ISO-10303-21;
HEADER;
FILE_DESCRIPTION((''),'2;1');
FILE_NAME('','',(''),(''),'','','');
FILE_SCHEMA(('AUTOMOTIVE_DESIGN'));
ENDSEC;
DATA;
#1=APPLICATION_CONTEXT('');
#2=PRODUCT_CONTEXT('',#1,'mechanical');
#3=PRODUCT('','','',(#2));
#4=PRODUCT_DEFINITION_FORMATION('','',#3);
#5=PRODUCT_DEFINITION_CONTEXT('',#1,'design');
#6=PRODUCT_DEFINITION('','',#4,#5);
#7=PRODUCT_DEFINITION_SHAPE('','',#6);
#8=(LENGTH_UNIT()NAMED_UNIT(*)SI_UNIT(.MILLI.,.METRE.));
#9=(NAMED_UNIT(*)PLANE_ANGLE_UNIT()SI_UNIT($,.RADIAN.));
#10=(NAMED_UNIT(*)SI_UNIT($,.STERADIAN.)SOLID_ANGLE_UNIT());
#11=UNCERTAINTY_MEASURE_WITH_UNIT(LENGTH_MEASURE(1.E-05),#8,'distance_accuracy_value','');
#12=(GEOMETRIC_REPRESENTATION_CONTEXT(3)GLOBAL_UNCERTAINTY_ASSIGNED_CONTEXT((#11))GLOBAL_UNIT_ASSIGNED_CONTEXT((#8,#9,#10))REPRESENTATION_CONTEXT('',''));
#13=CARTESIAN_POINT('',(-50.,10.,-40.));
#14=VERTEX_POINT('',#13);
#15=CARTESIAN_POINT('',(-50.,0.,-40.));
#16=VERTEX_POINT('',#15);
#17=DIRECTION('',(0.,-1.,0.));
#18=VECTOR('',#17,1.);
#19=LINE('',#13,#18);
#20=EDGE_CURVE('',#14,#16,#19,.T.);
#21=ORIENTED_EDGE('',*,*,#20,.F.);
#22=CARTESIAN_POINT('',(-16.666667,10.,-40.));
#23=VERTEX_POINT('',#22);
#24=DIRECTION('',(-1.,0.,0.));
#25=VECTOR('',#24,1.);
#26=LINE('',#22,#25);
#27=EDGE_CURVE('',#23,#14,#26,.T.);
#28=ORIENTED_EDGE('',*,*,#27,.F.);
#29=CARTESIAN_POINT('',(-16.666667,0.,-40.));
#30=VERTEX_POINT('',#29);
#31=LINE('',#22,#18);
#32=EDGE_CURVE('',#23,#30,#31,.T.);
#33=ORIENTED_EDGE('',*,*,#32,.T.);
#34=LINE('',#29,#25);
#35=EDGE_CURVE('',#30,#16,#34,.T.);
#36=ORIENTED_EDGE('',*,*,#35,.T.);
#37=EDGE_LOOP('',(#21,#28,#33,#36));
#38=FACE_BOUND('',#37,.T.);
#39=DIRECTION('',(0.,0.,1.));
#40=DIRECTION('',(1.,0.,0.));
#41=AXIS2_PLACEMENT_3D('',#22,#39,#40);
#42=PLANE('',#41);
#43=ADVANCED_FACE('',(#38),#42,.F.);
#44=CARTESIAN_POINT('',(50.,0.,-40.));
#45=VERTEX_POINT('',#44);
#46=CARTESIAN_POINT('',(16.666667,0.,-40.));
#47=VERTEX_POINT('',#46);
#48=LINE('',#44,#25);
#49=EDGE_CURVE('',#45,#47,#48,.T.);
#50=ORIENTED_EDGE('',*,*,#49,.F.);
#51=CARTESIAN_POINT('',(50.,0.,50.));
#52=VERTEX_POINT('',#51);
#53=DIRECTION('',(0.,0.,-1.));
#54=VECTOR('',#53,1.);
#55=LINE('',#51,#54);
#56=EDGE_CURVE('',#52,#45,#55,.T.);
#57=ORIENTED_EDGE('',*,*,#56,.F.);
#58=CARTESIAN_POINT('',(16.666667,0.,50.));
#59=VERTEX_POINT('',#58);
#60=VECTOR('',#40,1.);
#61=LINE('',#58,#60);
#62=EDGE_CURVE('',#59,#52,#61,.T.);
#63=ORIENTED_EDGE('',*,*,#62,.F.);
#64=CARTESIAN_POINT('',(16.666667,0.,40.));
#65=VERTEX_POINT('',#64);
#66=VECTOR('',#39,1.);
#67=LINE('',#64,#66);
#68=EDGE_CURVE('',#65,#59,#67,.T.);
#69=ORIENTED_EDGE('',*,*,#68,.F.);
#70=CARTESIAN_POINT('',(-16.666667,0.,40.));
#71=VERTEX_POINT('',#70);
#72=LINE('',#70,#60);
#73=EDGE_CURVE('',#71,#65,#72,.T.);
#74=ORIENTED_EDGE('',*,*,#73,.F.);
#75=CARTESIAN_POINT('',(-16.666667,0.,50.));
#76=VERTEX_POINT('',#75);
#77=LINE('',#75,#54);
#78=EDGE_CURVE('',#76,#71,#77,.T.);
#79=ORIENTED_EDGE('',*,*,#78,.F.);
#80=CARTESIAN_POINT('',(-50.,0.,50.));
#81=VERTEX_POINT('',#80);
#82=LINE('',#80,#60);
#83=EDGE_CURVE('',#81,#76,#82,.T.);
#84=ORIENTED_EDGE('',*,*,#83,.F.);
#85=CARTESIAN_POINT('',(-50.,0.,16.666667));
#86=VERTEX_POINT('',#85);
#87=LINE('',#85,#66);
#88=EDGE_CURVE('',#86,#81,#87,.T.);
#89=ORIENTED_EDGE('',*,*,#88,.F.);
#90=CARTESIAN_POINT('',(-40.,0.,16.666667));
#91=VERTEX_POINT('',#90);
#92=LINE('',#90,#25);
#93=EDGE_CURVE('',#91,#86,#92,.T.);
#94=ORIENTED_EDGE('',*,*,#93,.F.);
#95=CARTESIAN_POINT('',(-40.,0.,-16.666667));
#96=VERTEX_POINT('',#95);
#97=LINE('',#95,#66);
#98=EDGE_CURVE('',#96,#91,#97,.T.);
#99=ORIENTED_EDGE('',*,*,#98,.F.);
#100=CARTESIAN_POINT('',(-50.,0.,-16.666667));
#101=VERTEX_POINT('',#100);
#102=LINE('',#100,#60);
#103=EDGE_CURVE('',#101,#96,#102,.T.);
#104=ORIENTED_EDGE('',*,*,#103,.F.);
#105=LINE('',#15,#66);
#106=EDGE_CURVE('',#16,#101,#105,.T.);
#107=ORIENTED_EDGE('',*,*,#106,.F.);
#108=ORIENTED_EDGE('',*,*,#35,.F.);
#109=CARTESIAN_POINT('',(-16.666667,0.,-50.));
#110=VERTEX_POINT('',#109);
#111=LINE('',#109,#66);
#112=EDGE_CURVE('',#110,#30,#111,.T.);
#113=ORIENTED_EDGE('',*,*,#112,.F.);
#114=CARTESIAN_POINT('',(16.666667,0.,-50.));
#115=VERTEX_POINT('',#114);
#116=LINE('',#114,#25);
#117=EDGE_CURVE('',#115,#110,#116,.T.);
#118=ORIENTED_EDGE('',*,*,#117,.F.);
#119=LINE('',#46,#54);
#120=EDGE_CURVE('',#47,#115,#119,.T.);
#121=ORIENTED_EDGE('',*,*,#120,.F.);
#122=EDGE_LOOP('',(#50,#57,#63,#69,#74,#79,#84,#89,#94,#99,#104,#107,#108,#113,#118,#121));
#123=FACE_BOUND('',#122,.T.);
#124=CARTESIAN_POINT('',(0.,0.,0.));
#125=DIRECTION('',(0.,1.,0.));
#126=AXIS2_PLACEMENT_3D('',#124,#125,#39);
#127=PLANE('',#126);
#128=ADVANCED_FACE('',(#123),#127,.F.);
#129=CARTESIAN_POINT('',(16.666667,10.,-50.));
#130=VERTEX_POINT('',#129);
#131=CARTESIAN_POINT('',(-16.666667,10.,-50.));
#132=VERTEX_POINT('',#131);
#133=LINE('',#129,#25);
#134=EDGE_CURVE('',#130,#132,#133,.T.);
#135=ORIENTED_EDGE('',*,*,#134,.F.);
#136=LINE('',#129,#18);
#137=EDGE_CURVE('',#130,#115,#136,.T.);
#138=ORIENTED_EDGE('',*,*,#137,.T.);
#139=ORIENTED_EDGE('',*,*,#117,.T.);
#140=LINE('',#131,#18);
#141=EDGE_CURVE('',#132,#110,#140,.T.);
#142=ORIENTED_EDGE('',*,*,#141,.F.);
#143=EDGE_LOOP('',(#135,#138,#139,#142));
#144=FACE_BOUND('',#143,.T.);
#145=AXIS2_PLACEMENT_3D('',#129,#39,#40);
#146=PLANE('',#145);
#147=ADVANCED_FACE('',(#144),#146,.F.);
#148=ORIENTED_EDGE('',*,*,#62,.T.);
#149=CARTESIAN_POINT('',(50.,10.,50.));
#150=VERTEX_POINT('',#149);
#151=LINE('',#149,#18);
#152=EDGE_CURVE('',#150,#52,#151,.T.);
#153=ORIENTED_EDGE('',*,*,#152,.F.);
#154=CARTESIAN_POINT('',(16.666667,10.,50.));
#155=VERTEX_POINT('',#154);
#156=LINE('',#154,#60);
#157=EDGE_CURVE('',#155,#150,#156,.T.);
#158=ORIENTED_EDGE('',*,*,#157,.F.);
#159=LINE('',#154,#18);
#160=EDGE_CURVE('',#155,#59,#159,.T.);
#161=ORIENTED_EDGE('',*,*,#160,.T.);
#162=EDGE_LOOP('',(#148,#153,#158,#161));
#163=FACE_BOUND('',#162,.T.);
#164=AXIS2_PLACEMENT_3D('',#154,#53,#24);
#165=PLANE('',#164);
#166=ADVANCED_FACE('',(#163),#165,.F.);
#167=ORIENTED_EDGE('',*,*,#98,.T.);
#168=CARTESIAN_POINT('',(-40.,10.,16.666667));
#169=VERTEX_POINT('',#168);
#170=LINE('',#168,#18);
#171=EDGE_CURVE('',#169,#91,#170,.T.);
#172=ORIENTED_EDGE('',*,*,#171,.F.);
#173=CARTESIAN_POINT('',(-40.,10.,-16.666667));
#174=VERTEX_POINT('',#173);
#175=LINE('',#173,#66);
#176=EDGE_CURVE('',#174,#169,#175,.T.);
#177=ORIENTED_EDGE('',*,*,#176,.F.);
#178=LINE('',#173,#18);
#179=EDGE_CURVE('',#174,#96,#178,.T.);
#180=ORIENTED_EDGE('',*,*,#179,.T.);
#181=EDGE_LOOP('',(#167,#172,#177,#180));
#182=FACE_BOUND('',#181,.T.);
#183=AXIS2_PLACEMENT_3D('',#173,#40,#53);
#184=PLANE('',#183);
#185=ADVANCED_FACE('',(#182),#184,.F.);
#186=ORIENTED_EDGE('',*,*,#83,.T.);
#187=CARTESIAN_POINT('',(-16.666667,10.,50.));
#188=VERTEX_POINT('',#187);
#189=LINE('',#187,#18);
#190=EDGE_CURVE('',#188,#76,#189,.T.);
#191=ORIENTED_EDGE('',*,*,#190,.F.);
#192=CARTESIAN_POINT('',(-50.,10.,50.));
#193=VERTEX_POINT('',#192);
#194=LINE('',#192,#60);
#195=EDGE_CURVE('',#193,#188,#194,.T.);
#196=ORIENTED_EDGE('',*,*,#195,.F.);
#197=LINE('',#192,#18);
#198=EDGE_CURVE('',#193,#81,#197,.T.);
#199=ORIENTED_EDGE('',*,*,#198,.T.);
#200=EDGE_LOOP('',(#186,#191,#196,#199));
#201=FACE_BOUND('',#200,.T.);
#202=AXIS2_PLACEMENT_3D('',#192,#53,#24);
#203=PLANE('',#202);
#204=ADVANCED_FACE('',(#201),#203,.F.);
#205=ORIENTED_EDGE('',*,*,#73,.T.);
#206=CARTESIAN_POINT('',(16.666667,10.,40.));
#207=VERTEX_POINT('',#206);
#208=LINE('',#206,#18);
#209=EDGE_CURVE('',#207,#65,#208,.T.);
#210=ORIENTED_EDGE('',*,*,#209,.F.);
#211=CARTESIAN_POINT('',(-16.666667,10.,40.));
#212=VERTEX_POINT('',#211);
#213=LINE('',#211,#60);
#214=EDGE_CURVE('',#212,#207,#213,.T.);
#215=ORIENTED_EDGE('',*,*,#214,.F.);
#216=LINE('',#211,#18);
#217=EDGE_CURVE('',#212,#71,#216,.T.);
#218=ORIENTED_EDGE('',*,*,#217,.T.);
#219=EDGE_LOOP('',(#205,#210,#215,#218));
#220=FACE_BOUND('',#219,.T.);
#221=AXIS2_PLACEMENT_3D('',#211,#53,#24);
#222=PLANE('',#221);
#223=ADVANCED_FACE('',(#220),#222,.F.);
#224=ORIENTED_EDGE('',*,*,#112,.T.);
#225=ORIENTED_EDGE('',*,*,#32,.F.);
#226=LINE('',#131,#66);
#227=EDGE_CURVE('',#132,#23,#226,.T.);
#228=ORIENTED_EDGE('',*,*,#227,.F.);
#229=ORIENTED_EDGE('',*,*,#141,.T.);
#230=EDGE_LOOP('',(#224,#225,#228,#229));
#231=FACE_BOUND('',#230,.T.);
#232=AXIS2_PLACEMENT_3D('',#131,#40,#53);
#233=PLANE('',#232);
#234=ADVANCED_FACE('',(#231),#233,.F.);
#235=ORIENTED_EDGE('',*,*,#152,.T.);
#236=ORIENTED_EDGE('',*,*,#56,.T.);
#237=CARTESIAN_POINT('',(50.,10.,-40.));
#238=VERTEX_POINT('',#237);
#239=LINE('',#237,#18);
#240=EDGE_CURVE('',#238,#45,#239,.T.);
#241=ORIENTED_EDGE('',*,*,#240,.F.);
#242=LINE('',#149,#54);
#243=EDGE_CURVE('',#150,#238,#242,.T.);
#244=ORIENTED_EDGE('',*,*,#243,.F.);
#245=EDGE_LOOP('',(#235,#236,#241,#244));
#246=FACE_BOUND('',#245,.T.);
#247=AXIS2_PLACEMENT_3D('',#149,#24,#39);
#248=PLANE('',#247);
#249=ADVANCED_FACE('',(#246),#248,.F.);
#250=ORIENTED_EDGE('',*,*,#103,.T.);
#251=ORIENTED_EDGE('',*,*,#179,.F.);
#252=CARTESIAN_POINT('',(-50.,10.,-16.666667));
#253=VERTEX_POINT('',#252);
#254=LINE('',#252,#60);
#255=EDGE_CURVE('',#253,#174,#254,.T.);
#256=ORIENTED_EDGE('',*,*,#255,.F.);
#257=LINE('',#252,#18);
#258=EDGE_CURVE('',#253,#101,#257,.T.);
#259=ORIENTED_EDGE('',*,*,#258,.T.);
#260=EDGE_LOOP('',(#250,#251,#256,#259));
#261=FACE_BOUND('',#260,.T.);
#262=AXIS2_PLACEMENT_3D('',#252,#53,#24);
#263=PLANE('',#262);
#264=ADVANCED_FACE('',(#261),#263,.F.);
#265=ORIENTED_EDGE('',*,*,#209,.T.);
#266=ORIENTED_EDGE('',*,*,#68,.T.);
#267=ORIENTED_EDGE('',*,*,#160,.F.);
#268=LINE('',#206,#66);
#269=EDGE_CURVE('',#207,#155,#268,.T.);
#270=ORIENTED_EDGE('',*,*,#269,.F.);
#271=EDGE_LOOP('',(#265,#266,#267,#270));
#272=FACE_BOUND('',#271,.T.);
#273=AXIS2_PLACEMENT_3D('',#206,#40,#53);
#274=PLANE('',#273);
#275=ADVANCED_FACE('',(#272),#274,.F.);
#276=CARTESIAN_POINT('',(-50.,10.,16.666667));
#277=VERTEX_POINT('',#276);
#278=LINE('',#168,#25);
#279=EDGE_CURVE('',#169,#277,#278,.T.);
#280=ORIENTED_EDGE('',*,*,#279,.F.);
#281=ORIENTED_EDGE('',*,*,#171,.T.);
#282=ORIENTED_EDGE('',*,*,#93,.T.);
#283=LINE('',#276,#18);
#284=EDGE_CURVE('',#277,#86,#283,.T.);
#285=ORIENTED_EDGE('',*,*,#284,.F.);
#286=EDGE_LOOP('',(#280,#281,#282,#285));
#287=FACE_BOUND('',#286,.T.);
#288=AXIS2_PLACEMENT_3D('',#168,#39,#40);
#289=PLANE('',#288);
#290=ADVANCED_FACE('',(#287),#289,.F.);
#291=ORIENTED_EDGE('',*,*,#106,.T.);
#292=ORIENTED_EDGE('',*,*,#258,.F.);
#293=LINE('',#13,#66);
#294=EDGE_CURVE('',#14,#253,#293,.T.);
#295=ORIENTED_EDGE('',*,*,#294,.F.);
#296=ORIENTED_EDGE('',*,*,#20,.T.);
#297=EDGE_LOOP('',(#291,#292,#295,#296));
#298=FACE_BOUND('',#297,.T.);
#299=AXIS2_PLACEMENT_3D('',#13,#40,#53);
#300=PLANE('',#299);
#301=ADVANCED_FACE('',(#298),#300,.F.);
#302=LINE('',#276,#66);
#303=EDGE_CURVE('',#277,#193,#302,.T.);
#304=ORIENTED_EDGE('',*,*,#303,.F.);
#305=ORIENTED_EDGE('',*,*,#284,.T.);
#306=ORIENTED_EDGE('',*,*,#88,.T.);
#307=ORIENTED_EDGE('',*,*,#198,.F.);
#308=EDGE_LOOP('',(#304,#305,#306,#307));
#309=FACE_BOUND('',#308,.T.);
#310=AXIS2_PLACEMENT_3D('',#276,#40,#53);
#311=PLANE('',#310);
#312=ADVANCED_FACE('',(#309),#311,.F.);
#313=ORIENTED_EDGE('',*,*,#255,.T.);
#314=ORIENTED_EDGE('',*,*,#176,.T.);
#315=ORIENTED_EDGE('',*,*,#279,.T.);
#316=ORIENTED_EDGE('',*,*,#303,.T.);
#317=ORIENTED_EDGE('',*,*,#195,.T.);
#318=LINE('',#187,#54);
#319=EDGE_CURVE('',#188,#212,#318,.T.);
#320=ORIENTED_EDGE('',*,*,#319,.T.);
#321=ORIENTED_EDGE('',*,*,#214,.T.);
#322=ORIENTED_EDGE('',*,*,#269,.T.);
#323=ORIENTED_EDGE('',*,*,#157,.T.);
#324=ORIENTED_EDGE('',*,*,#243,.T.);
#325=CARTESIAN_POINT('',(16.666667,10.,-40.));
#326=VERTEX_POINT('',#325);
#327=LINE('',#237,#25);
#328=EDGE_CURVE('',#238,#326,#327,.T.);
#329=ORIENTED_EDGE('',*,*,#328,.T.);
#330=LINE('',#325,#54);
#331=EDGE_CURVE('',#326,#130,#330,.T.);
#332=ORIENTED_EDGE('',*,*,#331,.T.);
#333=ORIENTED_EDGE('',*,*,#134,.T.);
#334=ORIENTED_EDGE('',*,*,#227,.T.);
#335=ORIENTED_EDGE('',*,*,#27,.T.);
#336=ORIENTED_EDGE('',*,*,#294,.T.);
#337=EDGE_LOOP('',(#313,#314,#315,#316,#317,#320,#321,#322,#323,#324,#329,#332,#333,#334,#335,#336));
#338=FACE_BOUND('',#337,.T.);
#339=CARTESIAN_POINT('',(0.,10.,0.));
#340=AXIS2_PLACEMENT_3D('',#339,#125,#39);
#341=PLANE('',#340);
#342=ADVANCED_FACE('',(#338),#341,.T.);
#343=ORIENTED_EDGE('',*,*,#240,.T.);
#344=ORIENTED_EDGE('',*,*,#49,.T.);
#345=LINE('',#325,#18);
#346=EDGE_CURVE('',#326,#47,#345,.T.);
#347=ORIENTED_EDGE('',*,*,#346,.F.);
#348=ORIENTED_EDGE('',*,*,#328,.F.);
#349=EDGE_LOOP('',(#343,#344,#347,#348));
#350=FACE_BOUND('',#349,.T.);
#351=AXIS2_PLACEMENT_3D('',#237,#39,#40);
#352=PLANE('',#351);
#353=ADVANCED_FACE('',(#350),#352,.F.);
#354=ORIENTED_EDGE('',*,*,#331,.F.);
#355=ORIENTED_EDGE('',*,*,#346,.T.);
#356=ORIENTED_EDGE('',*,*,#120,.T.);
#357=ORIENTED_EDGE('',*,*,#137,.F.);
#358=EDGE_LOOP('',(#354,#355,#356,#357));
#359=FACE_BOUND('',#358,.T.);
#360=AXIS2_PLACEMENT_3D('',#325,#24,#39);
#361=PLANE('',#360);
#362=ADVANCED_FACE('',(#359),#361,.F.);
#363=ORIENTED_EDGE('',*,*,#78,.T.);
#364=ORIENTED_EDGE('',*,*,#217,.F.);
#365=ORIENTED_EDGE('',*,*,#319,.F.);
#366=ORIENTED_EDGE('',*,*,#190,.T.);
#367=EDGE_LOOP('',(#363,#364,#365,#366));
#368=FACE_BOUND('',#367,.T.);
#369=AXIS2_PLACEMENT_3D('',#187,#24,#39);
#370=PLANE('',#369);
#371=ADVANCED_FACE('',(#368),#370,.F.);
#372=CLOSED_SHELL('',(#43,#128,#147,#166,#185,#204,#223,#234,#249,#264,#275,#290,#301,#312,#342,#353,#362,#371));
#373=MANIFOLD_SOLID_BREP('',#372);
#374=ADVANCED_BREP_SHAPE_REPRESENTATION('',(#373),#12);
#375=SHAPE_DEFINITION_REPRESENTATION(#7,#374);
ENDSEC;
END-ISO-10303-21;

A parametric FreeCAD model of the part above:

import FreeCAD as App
import Part
import Sketcher
Q = App.Units.Quantity

doc = App.newDocument("Part")
params = doc.addObject("Spreadsheet::Sheet", "Params")
for row, (alias, value) in enumerate([
    ("sketch1_width", "10 mm"),
    ("sketch1_height", "90 mm"),
    ("pad1_length", "10 mm"),
], start=1):
    params.set(f"A{row}", alias)
    params.set(f"B{row}", "=" + value)
    params.setAlias(f"B{row}", alias)

body = doc.addObject("PartDesign::Body", "Body")

sketch1 = body.newObject("Sketcher::SketchObject", "Sketch")
sketch1.AttachmentSupport = (doc.getObject("XZ_Plane"), [""])
sketch1.MapMode = "FlatFace"
sketch1.addGeometry([
    Part.LineSegment(App.Vector(-50, 17, 0), App.Vector(-50, 50, 0)),
    Part.LineSegment(App.Vector(-50, 50, 0), App.Vector(-17, 50, 0)),
    Part.LineSegment(App.Vector(-17, 50, 0), App.Vector(-17, 40, 0)),
    Part.LineSegment(App.Vector(-17, 40, 0), App.Vector(17, 40, 0)),
    Part.LineSegment(App.Vector(17, 40, 0), App.Vector(17, 50, 0)),
    Part.LineSegment(App.Vector(17, 50, 0), App.Vector(50, 50, 0)),
    Part.LineSegment(App.Vector(50, 50, 0), App.Vector(50, -40, 0)),
    Part.LineSegment(App.Vector(50, -40, 0), App.Vector(17, -40, 0)),
    Part.LineSegment(App.Vector(17, -40, 0), App.Vector(17, -50, 0)),
    Part.LineSegment(App.Vector(17, -50, 0), App.Vector(-17, -50, 0)),
    Part.LineSegment(App.Vector(-17, -50, 0), App.Vector(-17, -40, 0)),
    Part.LineSegment(App.Vector(-17, -40, 0), App.Vector(-50, -40, 0)),
    Part.LineSegment(App.Vector(-50, -40, 0), App.Vector(-50, -17, 0)),
    Part.LineSegment(App.Vector(-50, -17, 0), App.Vector(-40, -17, 0)),
    Part.LineSegment(App.Vector(-40, -17, 0), App.Vector(-40, 17, 0)),
    Part.LineSegment(App.Vector(-40, 17, 0), App.Vector(-50, 17, 0)),
], False)
sketch1.addConstraint([
    Sketcher.Constraint("Coincident", 0, 2, 1, 1),
    Sketcher.Constraint("Coincident", 1, 2, 2, 1),
    Sketcher.Constraint("Coincident", 2, 2, 3, 1),
    Sketcher.Constraint("Coincident", 3, 2, 4, 1),
    Sketcher.Constraint("Coincident", 4, 2, 5, 1),
    Sketcher.Constraint("Coincident", 5, 2, 6, 1),
    Sketcher.Constraint("Coincident", 6, 2, 7, 1),
    Sketcher.Constraint("Coincident", 7, 2, 8, 1),
    Sketcher.Constraint("Coincident", 8, 2, 9, 1),
    Sketcher.Constraint("Coincident", 9, 2, 10, 1),
    Sketcher.Constraint("Coincident", 10, 2, 11, 1),
    Sketcher.Constraint("Coincident", 11, 2, 12, 1),
    Sketcher.Constraint("Coincident", 12, 2, 13, 1),
    Sketcher.Constraint("Coincident", 13, 2, 14, 1),
    Sketcher.Constraint("Coincident", 14, 2, 15, 1),
    Sketcher.Constraint("Coincident", 15, 2, 0, 1),
    Sketcher.Constraint("Vertical", 0),
    Sketcher.Constraint("Horizontal", 1),
    Sketcher.Constraint("Vertical", 2),
    Sketcher.Constraint("Horizontal", 3),
    Sketcher.Constraint("Vertical", 4),
    Sketcher.Constraint("Horizontal", 5),
    Sketcher.Constraint("Vertical", 6),
    Sketcher.Constraint("Horizontal", 7),
    Sketcher.Constraint("Vertical", 8),
    Sketcher.Constraint("Horizontal", 9),
    Sketcher.Constraint("Vertical", 10),
    Sketcher.Constraint("Horizontal", 11),
    Sketcher.Constraint("Vertical", 12),
    Sketcher.Constraint("Horizontal", 13),
    Sketcher.Constraint("Vertical", 14),
    Sketcher.Constraint("Horizontal", 15),
    Sketcher.Constraint("Symmetric", 2, 2, 7, 2, -1, 1),
    Sketcher.Constraint("Symmetric", 4, 2, 9, 2, -1, 1),
    Sketcher.Constraint("Symmetric", 1, 2, 4, 2, -2),
    Sketcher.Constraint("Symmetric", 6, 2, 11, 2, -2),
    Sketcher.Constraint("Symmetric", 12, 2, 15, 2, -1),
    Sketcher.Constraint("Equal", 1, 3),
    Sketcher.Constraint("Equal", 11, 0),
    Sketcher.Constraint("Equal", 15, 2),
    Sketcher.Constraint("Equal", 0, 14),
    Sketcher.Constraint("DistanceX", 13, 1, 13, 2, Q("10 mm")),
    Sketcher.Constraint("DistanceY", 6, 2, 6, 1, Q("90 mm")),
])
sketch1.setExpression("Constraints[41]", "Params.sketch1_width")
sketch1.setExpression("Constraints[42]", "Params.sketch1_height")
pad1 = body.newObject("PartDesign::Pad", "Pad")
pad1.Profile = sketch1
pad1.setExpression("Length", "Params.pad1_length")
pad1.Reversed = True

doc.recompute()
